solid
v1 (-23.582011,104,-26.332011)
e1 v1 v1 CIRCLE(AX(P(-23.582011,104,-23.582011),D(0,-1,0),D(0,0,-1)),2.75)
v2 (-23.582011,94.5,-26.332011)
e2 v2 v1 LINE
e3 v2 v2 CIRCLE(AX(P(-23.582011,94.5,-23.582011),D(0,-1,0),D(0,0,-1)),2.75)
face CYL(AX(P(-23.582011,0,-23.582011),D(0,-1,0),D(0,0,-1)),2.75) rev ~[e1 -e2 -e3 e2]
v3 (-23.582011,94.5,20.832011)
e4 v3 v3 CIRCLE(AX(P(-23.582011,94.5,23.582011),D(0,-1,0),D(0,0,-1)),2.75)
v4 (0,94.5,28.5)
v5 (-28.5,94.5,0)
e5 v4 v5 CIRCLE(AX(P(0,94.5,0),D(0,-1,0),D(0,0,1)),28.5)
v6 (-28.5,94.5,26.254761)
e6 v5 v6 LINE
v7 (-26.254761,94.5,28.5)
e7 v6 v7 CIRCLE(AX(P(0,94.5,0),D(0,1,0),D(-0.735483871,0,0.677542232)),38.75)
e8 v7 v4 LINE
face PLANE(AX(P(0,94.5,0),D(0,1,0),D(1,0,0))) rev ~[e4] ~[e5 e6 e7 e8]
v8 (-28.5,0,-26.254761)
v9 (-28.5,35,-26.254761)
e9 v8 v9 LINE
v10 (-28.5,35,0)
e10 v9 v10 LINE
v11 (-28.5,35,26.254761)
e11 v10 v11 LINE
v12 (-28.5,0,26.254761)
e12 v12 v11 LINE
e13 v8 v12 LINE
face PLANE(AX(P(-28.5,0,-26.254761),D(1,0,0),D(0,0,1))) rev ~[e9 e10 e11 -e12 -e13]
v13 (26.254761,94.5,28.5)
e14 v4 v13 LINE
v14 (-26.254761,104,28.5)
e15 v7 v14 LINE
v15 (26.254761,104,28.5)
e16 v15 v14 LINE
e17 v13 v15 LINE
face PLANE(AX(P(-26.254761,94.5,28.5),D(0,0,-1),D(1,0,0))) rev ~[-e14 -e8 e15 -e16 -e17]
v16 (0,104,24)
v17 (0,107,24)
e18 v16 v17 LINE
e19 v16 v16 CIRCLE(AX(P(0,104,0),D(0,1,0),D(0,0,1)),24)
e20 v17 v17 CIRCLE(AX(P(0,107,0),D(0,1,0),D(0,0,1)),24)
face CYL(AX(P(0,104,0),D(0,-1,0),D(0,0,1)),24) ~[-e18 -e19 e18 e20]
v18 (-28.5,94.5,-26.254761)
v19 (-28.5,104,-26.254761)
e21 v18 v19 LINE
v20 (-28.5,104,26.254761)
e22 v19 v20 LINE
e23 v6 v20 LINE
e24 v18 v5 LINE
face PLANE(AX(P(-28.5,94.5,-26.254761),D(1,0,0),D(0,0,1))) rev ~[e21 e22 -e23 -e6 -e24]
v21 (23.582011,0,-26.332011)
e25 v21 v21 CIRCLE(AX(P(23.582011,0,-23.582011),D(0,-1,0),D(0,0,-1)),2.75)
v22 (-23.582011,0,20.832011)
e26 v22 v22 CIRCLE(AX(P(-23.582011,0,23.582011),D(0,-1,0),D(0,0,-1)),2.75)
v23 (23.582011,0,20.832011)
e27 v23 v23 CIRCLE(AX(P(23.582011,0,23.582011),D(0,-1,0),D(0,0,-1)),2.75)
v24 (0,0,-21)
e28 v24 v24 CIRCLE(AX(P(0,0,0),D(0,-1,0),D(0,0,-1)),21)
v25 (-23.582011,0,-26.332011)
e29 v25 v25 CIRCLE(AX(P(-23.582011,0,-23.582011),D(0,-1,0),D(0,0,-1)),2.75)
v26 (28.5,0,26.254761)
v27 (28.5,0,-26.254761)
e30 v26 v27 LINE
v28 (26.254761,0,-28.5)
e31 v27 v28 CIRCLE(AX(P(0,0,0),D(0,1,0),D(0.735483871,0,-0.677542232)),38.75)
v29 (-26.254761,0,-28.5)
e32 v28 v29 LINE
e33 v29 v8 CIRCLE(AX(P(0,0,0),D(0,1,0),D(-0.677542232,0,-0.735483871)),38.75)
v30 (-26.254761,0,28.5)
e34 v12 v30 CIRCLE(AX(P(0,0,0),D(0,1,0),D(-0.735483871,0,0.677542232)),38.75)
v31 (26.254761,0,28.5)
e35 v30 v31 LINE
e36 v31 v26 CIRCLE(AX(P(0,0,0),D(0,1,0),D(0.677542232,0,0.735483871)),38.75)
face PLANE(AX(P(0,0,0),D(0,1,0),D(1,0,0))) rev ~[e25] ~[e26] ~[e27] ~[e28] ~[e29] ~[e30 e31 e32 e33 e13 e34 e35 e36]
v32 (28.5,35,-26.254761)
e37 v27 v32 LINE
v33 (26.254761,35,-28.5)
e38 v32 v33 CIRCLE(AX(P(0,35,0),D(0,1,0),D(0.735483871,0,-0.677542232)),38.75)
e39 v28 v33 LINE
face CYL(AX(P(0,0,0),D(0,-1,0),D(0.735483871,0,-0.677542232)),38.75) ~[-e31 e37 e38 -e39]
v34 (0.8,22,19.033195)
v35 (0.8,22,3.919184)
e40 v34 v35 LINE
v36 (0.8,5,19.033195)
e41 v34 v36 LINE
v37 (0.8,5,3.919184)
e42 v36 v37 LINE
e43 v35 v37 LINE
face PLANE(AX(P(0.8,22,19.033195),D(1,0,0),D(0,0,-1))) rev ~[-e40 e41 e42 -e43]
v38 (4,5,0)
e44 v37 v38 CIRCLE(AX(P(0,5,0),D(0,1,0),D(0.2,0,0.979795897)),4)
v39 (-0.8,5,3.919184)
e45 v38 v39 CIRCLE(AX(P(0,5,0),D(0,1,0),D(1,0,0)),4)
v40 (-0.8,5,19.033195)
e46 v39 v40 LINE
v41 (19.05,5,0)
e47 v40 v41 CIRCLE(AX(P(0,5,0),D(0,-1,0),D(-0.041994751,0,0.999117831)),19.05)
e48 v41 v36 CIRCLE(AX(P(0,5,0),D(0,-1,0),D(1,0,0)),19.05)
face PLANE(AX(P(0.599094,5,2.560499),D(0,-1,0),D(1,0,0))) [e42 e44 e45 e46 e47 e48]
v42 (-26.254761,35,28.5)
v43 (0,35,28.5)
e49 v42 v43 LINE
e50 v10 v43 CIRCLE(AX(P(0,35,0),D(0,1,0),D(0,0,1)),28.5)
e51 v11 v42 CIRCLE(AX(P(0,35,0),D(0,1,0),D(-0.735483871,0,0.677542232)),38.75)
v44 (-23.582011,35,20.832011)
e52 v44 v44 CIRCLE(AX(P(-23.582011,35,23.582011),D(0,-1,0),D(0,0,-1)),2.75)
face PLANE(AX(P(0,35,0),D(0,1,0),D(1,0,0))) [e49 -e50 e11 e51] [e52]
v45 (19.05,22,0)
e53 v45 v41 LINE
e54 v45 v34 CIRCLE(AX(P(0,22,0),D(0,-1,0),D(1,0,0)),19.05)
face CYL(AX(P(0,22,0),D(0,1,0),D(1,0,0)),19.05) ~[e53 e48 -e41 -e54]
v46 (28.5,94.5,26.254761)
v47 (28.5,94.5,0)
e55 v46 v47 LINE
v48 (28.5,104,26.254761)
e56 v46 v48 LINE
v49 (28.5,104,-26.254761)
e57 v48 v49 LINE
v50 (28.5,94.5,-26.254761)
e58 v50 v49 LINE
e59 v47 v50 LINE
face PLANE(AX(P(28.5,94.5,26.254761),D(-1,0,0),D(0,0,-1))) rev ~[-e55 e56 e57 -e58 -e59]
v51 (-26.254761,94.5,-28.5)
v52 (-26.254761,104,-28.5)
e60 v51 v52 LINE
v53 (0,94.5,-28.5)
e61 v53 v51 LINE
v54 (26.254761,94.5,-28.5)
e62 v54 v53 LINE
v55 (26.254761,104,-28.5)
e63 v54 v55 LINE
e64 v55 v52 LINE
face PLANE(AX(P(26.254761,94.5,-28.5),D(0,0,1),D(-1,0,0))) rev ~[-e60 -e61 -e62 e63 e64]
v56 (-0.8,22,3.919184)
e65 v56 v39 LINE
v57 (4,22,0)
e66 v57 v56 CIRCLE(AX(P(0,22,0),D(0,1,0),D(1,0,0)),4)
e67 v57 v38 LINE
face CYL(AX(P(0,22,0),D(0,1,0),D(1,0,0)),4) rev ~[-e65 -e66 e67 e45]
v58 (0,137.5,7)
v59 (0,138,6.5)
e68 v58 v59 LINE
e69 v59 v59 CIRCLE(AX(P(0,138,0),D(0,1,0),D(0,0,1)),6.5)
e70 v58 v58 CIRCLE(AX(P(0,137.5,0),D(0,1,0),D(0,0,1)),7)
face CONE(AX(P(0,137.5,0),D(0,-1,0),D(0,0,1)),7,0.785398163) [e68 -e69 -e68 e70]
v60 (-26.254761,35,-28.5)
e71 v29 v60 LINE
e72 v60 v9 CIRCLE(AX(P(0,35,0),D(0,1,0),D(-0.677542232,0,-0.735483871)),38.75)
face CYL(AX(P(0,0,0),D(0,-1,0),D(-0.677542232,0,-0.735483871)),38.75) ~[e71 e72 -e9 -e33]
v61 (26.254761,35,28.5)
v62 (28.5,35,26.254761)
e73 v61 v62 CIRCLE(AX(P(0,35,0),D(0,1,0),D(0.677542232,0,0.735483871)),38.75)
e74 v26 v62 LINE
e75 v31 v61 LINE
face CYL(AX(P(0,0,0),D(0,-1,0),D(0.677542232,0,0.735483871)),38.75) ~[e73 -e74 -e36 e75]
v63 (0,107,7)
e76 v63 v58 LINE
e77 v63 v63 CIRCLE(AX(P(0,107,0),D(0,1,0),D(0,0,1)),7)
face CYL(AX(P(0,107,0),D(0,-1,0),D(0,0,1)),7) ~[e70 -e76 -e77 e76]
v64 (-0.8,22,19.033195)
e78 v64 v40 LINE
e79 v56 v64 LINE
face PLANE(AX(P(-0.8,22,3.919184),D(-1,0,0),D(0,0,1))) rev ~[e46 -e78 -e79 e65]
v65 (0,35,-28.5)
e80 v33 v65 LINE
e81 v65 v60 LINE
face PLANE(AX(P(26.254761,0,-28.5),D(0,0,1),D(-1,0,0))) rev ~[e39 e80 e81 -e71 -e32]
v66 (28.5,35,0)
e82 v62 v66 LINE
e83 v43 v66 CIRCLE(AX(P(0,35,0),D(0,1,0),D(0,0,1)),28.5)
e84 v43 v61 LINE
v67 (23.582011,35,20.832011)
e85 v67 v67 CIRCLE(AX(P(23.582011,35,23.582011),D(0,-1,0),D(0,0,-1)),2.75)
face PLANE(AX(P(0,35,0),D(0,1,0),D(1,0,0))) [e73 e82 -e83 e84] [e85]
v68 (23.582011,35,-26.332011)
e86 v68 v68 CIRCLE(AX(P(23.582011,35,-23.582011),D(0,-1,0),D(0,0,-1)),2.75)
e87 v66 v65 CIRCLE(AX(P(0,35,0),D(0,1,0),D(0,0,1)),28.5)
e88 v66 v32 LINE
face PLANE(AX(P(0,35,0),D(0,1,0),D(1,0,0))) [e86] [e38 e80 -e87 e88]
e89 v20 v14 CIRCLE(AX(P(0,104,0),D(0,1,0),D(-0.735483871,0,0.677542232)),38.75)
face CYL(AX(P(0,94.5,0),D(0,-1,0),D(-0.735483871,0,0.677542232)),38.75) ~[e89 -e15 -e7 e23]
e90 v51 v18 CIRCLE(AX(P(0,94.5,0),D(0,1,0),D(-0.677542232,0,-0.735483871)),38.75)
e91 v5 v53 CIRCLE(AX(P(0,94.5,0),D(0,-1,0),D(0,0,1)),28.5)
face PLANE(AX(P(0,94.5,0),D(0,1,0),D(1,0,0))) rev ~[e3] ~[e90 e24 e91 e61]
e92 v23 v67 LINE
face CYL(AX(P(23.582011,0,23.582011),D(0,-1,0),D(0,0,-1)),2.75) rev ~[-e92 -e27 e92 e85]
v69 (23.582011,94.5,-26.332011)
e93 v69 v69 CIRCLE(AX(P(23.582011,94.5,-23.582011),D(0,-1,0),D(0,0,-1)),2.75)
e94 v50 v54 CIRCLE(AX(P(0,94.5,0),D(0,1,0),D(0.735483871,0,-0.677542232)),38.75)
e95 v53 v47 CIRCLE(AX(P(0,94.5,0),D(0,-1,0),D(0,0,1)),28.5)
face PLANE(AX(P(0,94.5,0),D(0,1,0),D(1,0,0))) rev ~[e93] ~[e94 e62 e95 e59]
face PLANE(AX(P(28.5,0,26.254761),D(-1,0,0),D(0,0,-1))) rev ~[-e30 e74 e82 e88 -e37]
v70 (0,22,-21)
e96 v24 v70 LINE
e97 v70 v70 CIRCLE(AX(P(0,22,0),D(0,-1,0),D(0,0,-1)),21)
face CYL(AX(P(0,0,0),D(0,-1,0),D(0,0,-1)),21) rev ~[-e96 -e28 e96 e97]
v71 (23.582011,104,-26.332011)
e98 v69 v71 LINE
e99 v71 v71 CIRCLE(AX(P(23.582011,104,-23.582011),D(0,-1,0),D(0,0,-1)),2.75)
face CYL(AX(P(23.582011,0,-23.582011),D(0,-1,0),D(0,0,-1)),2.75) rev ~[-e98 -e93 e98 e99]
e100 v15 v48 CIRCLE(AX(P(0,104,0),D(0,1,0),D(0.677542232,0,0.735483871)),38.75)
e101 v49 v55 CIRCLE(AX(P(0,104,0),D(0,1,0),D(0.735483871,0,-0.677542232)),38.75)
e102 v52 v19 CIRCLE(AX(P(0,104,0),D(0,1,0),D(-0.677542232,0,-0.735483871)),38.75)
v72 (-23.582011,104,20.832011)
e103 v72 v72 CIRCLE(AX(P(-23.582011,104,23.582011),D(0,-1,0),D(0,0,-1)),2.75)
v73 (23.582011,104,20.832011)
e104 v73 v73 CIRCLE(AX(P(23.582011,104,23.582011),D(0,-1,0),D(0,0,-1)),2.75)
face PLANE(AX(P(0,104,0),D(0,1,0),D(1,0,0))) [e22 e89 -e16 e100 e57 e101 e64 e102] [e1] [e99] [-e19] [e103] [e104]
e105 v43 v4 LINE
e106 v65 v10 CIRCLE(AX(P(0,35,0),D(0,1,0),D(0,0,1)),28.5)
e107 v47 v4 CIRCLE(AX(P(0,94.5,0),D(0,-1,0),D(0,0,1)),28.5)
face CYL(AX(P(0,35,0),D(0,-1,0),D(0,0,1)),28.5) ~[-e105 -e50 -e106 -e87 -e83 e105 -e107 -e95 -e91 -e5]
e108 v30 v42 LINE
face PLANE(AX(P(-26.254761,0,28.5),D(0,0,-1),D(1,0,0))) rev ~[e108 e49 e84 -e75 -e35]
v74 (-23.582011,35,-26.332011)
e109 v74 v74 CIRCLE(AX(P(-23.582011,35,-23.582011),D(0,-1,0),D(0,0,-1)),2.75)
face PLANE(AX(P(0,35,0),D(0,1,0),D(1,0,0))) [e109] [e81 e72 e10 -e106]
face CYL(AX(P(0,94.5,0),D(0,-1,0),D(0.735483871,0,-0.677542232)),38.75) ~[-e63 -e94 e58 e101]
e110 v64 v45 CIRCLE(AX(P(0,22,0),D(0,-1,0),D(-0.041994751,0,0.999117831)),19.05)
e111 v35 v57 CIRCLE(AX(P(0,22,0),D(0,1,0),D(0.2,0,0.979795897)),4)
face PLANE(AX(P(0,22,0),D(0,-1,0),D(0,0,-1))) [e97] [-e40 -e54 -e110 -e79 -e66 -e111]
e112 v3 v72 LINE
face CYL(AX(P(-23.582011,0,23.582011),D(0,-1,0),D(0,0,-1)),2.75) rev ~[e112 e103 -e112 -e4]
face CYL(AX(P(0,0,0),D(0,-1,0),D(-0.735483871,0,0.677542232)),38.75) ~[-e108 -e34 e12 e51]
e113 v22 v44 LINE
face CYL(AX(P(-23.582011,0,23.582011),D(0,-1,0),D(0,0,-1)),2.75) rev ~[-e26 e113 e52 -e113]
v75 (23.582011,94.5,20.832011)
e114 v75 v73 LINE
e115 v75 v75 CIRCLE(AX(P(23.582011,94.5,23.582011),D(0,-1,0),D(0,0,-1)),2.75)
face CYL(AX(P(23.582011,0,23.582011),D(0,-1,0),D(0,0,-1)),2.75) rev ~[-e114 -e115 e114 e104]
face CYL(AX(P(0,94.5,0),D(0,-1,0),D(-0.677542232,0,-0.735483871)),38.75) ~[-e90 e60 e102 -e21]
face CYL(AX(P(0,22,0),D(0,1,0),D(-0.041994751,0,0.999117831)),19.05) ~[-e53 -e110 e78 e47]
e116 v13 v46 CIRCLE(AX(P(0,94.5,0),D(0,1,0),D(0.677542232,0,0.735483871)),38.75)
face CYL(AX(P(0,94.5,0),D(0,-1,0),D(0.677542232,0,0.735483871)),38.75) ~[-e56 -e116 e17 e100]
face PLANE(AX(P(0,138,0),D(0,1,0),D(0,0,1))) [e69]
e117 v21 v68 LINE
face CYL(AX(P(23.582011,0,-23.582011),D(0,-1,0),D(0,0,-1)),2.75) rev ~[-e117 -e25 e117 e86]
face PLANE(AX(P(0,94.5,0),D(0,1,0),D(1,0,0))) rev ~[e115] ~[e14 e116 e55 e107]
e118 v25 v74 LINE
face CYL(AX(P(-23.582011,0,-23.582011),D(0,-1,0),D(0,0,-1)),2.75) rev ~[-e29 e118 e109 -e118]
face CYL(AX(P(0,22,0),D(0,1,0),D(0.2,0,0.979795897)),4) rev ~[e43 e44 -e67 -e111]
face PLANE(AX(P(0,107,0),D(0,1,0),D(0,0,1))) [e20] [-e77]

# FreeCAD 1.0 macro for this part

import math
import FreeCAD as App
import Part
import Sketcher
from FreeCAD import Vector
Q = App.Units.Quantity


def edges_at(feature, points):
    """Names of the edges that pass closest to the given points."""
    edges = feature.Shape.Edges
    near = lambda p: min(range(len(edges)), key=lambda i: edges[i].distToShape(Part.Vertex(*p))[0])
    return sorted({f"Edge{near(p) + 1}" for p in points})

doc = App.newDocument("Part")
params = doc.addObject("Spreadsheet::Sheet", "Params")
for row, (alias, value) in enumerate([
    ("sketch1_radius", "38.75 mm"),
    ("pad1_length", "35 mm"),
    ("sketch2_diameter", "57 mm"),
    ("pad2_length", "69 mm"),
    ("sketch3_radius", "38.75 mm"),
    ("pad3_length", "9.5 mm"),
    ("sketch4_diameter", "48 mm"),
    ("pad4_length", "3 mm"),
    ("sketch5_diameter", "14 mm"),
    ("pad5_length", "31 mm"),
    ("sketch6_diameter", "5.5 mm"),
    ("pocket1_length", "297 mm"),
    ("sketch7_diameter", "42 mm"),
    ("pocket2_length", "22 mm"),
    ("sketch8_radius", "4 mm"),
    ("sketch8_radius2", "19.05 mm"),
    ("pad6_length", "17 mm"),
    ("chamfer_size", "0.5 mm"),
], start=1):
    params.set(f"A{row}", alias)
    params.set(f"B{row}", "=" + value)
    params.setAlias(f"B{row}", alias)

body = doc.addObject("PartDesign::Body", "Body")

sketch1 = body.newObject("Sketcher::SketchObject", "Sketch")
sketch1.AttachmentSupport = (doc.getObject("XZ_Plane"), [""])
sketch1.MapMode = "FlatFace"
sketch1.addGeometry([
    Part.LineSegment(Vector(26.3, -28.5, 0), Vector(-26.3, -28.5, 0)),
    Part.ArcOfCircle(Part.Circle(Vector(0, 0, 0), Vector(0, 0, 1), 38.8), math.radians(-137.35), math.radians(-132.65)),
    Part.LineSegment(Vector(-28.5, -26.3, 0), Vector(-28.5, 26.3, 0)),
    Part.ArcOfCircle(Part.Circle(Vector(0, 0, 0), Vector(0, 0, 1), 38.8), math.radians(132.65), math.radians(137.35)),
    Part.LineSegment(Vector(-26.3, 28.5, 0), Vector(26.3, 28.5, 0)),
    Part.ArcOfCircle(Part.Circle(Vector(0, 0, 0), Vector(0, 0, 1), 38.8), math.radians(42.65), math.radians(47.35)),
    Part.LineSegment(Vector(28.5, 26.3, 0), Vector(28.5, -26.3, 0)),
    Part.ArcOfCircle(Part.Circle(Vector(0, 0, 0), Vector(0, 0, 1), 38.8), math.radians(-47.35), math.radians(-42.65)),
], False)
sketch1.addConstraint([
    Sketcher.Constraint("Coincident", 0, 2, 1, 2),
    Sketcher.Constraint("Coincident", 1, 1, 2, 1),
    Sketcher.Constraint("Coincident", 2, 2, 3, 2),
    Sketcher.Constraint("Coincident", 3, 1, 4, 1),
    Sketcher.Constraint("Coincident", 4, 2, 5, 2),
    Sketcher.Constraint("Coincident", 5, 1, 6, 1),
    Sketcher.Constraint("Coincident", 6, 2, 7, 2),
    Sketcher.Constraint("Coincident", 7, 1, 0, 1),
    Sketcher.Constraint("Horizontal", 0),
    Sketcher.Constraint("Vertical", 2),
    Sketcher.Constraint("Horizontal", 4),
    Sketcher.Constraint("Vertical", 6),
    Sketcher.Constraint("Coincident", 1, 3, -1, 1),
    Sketcher.Constraint("Coincident", 3, 3, -1, 1),
    Sketcher.Constraint("Coincident", 5, 3, -1, 1),
    Sketcher.Constraint("Coincident", 7, 3, -1, 1),
    Sketcher.Constraint("Equal", 1, 3),
    Sketcher.Constraint("Equal", 3, 5),
    Sketcher.Constraint("Equal", 5, 7),
    Sketcher.Constraint("Horizontal", 2, 2, 5, 1),
    Sketcher.Constraint("Vertical", 0, 2, 3, 1),
    Sketcher.Constraint("Equal", 4, 2),
    Sketcher.Constraint("Radius", 1, Q("38.75 mm")),
    Sketcher.Constraint("DistanceY", 0, 2, -1, 1, Q("28.5 mm")),
])
sketch1.setExpression("Constraints[22]", "Params.sketch1_radius")
pad1 = body.newObject("PartDesign::Pad", "Pad")
pad1.Profile = sketch1
pad1.setExpression("Length", "Params.pad1_length")
pad1.Reversed = True

sketch2 = body.newObject("Sketcher::SketchObject", "Sketch001")
sketch2.AttachmentSupport = (doc.getObject("XZ_Plane"), [""])
sketch2.MapMode = "FlatFace"
sketch2.AttachmentOffset = App.Placement(Vector(0, 0, -35), App.Rotation())
sketch2.addGeometry(Part.Circle(Vector(0, 0, 0), Vector(0, 0, 1), 28), False)
sketch2.addConstraint([
    Sketcher.Constraint("Coincident", 0, 3, -1, 1),
    Sketcher.Constraint("Diameter", 0, Q("57 mm")),
])
sketch2.setExpression("Constraints[1]", "Params.sketch2_diameter")
pad2 = body.newObject("PartDesign::Pad", "Pad001")
pad2.Profile = sketch2
pad2.setExpression("Length", "Params.pad2_length")
pad2.Reversed = True

sketch3 = body.newObject("Sketcher::SketchObject", "Sketch002")
sketch3.AttachmentSupport = (doc.getObject("XZ_Plane"), [""])
sketch3.MapMode = "FlatFace"
sketch3.AttachmentOffset = App.Placement(Vector(0, 0, -94.5), App.Rotation())
sketch3.addGeometry([
    Part.LineSegment(Vector(-26.3, 28.5, 0), Vector(26.3, 28.5, 0)),
    Part.ArcOfCircle(Part.Circle(Vector(0, 0, 0), Vector(0, 0, 1), 38.8), math.radians(42.65), math.radians(47.35)),
    Part.LineSegment(Vector(28.5, 26.3, 0), Vector(28.5, -26.3, 0)),
    Part.ArcOfCircle(Part.Circle(Vector(0, 0, 0), Vector(0, 0, 1), 38.8), math.radians(-47.35), math.radians(-42.65)),
    Part.LineSegment(Vector(26.3, -28.5, 0), Vector(-26.3, -28.5, 0)),
    Part.ArcOfCircle(Part.Circle(Vector(0, 0, 0), Vector(0, 0, 1), 38.8), math.radians(-137.35), math.radians(-132.65)),
    Part.LineSegment(Vector(-28.5, -26.3, 0), Vector(-28.5, 26.3, 0)),
    Part.ArcOfCircle(Part.Circle(Vector(0, 0, 0), Vector(0, 0, 1), 38.8), math.radians(132.65), math.radians(137.35)),
], False)
sketch3.addConstraint([
    Sketcher.Constraint("Coincident", 0, 2, 1, 2),
    Sketcher.Constraint("Coincident", 1, 1, 2, 1),
    Sketcher.Constraint("Coincident", 2, 2, 3, 2),
    Sketcher.Constraint("Coincident", 3, 1, 4, 1),
    Sketcher.Constraint("Coincident", 4, 2, 5, 2),
    Sketcher.Constraint("Coincident", 5, 1, 6, 1),
    Sketcher.Constraint("Coincident", 6, 2, 7, 2),
    Sketcher.Constraint("Coincident", 7, 1, 0, 1),
    Sketcher.Constraint("Horizontal", 0),
    Sketcher.Constraint("Vertical", 2),
    Sketcher.Constraint("Horizontal", 4),
    Sketcher.Constraint("Vertical", 6),
    Sketcher.Constraint("Coincident", 1, 3, -1, 1),
    Sketcher.Constraint("Coincident", 3, 3, -1, 1),
    Sketcher.Constraint("Coincident", 5, 3, -1, 1),
    Sketcher.Constraint("Coincident", 7, 3, -1, 1),
    Sketcher.Constraint("Equal", 1, 3),
    Sketcher.Constraint("Equal", 3, 5),
    Sketcher.Constraint("Equal", 5, 7),
    Sketcher.Constraint("Horizontal", 2, 2, 5, 1),
    Sketcher.Constraint("Vertical", 0, 2, 3, 1),
    Sketcher.Constraint("Equal", 4, 2),
    Sketcher.Constraint("Radius", 1, Q("38.75 mm")),
    Sketcher.Constraint("DistanceY", -1, 1, 0, 2, Q("28.5 mm")),
])
sketch3.setExpression("Constraints[22]", "Params.sketch3_radius")
pad3 = body.newObject("PartDesign::Pad", "Pad002")
pad3.Profile = sketch3
pad3.setExpression("Length", "Params.pad3_length")
pad3.Reversed = True

sketch4 = body.newObject("Sketcher::SketchObject", "Sketch003")
sketch4.AttachmentSupport = (doc.getObject("XZ_Plane"), [""])
sketch4.MapMode = "FlatFace"
sketch4.AttachmentOffset = App.Placement(Vector(0, 0, -104), App.Rotation())
sketch4.addGeometry(Part.Circle(Vector(0, 0, 0), Vector(0, 0, 1), 24), False)
sketch4.addConstraint([
    Sketcher.Constraint("Coincident", 0, 3, -1, 1),
    Sketcher.Constraint("Diameter", 0, Q("48 mm")),
])
sketch4.setExpression("Constraints[1]", "Params.sketch4_diameter")
pad4 = body.newObject("PartDesign::Pad", "Pad003")
pad4.Profile = sketch4
pad4.setExpression("Length", "Params.pad4_length")
pad4.Reversed = True

sketch5 = body.newObject("Sketcher::SketchObject", "Sketch004")
sketch5.AttachmentSupport = (doc.getObject("XZ_Plane"), [""])
sketch5.MapMode = "FlatFace"
sketch5.AttachmentOffset = App.Placement(Vector(0, 0, -107), App.Rotation())
sketch5.addGeometry(Part.Circle(Vector(0, 0, 0), Vector(0, 0, 1), 7), False)
sketch5.addConstraint([
    Sketcher.Constraint("Coincident", 0, 3, -1, 1),
    Sketcher.Constraint("Diameter", 0, Q("14 mm")),
])
sketch5.setExpression("Constraints[1]", "Params.sketch5_diameter")
pad5 = body.newObject("PartDesign::Pad", "Pad004")
pad5.Profile = sketch5
pad5.setExpression("Length", "Params.pad5_length")
pad5.Reversed = True

sketch6 = body.newObject("Sketcher::SketchObject", "Sketch005")
sketch6.AttachmentSupport = (doc.getObject("XZ_Plane"), [""])
sketch6.MapMode = "FlatFace"
sketch6.addGeometry([
    Part.Circle(Vector(-23.6, 23.6, 0), Vector(0, 0, 1), 2.8),
    Part.Circle(Vector(23.6, 23.6, 0), Vector(0, 0, 1), 2.8),
    Part.Circle(Vector(23.6, -23.6, 0), Vector(0, 0, 1), 2.8),
    Part.Circle(Vector(-23.6, -23.6, 0), Vector(0, 0, 1), 2.8),
], False)
sketch6.addConstraint([
    Sketcher.Constraint("Equal", 0, 1),
    Sketcher.Constraint("Equal", 1, 2),
    Sketcher.Constraint("Equal", 2, 3),
    Sketcher.Constraint("Symmetric", 0, 3, 2, 3, -1, 1),
    Sketcher.Constraint("Symmetric", 1, 3, 3, 3, -1, 1),
    Sketcher.Constraint("Symmetric", 0, 3, 1, 3, -2),
    Sketcher.Constraint("Diameter", 0, Q("5.5 mm")),
    Sketcher.Constraint("DistanceX", 0, 3, -1, 1, Q("23.582011 mm")),
    Sketcher.Constraint("DistanceY", -1, 1, 0, 3, Q("23.582011 mm")),
])
sketch6.setExpression("Constraints[6]", "Params.sketch6_diameter")
pocket1 = body.newObject("PartDesign::Pocket", "Pocket")
pocket1.Profile = sketch6
pocket1.setExpression("Length", "Params.pocket1_length")

sketch7 = body.newObject("Sketcher::SketchObject", "Sketch006")
sketch7.AttachmentSupport = (doc.getObject("XZ_Plane"), [""])
sketch7.MapMode = "FlatFace"
sketch7.addGeometry(Part.Circle(Vector(0, 0, 0), Vector(0, 0, 1), 21), False)
sketch7.addConstraint([
    Sketcher.Constraint("Coincident", 0, 3, -1, 1),
    Sketcher.Constraint("Diameter", 0, Q("42 mm")),
])
sketch7.setExpression("Constraints[1]", "Params.sketch7_diameter")
pocket2 = body.newObject("PartDesign::Pocket", "Pocket001")
pocket2.Profile = sketch7
pocket2.setExpression("Length", "Params.pocket2_length")

sketch8 = body.newObject("Sketcher::SketchObject", "Sketch007")
sketch8.AttachmentSupport = (doc.getObject("XZ_Plane"), [""])
sketch8.MapMode = "FlatFace"
sketch8.AttachmentOffset = App.Placement(Vector(0, 0, -22), App.Rotation())
sketch8.addGeometry([
    Part.LineSegment(Vector(-0.8, 3.9, 0), Vector(-0.8, 19, 0)),
    Part.ArcOfCircle(Part.Circle(Vector(0, 0, 0), Vector(0, 0, 1), 19.1), math.radians(92), math.radians(360)),
    Part.ArcOfCircle(Part.Circle(Vector(0, 0, 0), Vector(0, 0, 1), 19.1), math.radians(0), math.radians(88)),
    Part.LineSegment(Vector(0.8, 19, 0), Vector(0.8, 3.9, 0)),
    Part.ArcOfCircle(Part.Circle(Vector(0, 0, 0), Vector(0, 0, 1), 4), math.radians(0), math.radians(78)),
    Part.ArcOfCircle(Part.Circle(Vector(0, 0, 0), Vector(0, 0, 1), 4), math.radians(102), math.radians(360)),
], False)
sketch8.addConstraint([
    Sketcher.Constraint("Coincident", 0, 2, 1, 1),
    Sketcher.Constraint("Tangent", 1, 2, 2, 1),
    Sketcher.Constraint("Coincident", 2, 2, 3, 1),
    Sketcher.Constraint("Coincident", 3, 2, 4, 2),
    Sketcher.Constraint("Tangent", 4, 1, 5, 2),
    Sketcher.Constraint("Coincident", 5, 1, 0, 1),
    Sketcher.Constraint("Vertical", 0),
    Sketcher.Constraint("Vertical", 3),
    Sketcher.Constraint("Coincident", 1, 3, -1, 1),
    Sketcher.Constraint("Coincident", 4, 3, -1, 1),
    Sketcher.Constraint("Equal", 1, 2),
    Sketcher.Constraint("Equal", 4, 5),
    Sketcher.Constraint("PointOnObject", 1, 2, -1),
    Sketcher.Constraint("PointOnObject", 4, 1, -1),
    Sketcher.Constraint("Horizontal", 0, 2, 2, 2),
    Sketcher.Constraint("Radius", 4, Q("4 mm")),
    Sketcher.Constraint("Radius", 1, Q("19.05 mm")),
    Sketcher.Constraint("DistanceX", 0, 2, -1, 1, Q("0.8 mm")),
])
sketch8.setExpression("Constraints[15]", "Params.sketch8_radius")
sketch8.setExpression("Constraints[16]", "Params.sketch8_radius2")
pad6 = body.newObject("PartDesign::Pad", "Pad005")
pad6.Profile = sketch8
pad6.setExpression("Length", "Params.pad6_length")
doc.recompute()

chamfer = body.newObject("PartDesign::Chamfer", "Chamfer")
chamfer.Base = (pad6, edges_at(pad6, [(0, 138, -7)]))
chamfer.setExpression("Size", "Params.chamfer_size")

doc.recompute()
